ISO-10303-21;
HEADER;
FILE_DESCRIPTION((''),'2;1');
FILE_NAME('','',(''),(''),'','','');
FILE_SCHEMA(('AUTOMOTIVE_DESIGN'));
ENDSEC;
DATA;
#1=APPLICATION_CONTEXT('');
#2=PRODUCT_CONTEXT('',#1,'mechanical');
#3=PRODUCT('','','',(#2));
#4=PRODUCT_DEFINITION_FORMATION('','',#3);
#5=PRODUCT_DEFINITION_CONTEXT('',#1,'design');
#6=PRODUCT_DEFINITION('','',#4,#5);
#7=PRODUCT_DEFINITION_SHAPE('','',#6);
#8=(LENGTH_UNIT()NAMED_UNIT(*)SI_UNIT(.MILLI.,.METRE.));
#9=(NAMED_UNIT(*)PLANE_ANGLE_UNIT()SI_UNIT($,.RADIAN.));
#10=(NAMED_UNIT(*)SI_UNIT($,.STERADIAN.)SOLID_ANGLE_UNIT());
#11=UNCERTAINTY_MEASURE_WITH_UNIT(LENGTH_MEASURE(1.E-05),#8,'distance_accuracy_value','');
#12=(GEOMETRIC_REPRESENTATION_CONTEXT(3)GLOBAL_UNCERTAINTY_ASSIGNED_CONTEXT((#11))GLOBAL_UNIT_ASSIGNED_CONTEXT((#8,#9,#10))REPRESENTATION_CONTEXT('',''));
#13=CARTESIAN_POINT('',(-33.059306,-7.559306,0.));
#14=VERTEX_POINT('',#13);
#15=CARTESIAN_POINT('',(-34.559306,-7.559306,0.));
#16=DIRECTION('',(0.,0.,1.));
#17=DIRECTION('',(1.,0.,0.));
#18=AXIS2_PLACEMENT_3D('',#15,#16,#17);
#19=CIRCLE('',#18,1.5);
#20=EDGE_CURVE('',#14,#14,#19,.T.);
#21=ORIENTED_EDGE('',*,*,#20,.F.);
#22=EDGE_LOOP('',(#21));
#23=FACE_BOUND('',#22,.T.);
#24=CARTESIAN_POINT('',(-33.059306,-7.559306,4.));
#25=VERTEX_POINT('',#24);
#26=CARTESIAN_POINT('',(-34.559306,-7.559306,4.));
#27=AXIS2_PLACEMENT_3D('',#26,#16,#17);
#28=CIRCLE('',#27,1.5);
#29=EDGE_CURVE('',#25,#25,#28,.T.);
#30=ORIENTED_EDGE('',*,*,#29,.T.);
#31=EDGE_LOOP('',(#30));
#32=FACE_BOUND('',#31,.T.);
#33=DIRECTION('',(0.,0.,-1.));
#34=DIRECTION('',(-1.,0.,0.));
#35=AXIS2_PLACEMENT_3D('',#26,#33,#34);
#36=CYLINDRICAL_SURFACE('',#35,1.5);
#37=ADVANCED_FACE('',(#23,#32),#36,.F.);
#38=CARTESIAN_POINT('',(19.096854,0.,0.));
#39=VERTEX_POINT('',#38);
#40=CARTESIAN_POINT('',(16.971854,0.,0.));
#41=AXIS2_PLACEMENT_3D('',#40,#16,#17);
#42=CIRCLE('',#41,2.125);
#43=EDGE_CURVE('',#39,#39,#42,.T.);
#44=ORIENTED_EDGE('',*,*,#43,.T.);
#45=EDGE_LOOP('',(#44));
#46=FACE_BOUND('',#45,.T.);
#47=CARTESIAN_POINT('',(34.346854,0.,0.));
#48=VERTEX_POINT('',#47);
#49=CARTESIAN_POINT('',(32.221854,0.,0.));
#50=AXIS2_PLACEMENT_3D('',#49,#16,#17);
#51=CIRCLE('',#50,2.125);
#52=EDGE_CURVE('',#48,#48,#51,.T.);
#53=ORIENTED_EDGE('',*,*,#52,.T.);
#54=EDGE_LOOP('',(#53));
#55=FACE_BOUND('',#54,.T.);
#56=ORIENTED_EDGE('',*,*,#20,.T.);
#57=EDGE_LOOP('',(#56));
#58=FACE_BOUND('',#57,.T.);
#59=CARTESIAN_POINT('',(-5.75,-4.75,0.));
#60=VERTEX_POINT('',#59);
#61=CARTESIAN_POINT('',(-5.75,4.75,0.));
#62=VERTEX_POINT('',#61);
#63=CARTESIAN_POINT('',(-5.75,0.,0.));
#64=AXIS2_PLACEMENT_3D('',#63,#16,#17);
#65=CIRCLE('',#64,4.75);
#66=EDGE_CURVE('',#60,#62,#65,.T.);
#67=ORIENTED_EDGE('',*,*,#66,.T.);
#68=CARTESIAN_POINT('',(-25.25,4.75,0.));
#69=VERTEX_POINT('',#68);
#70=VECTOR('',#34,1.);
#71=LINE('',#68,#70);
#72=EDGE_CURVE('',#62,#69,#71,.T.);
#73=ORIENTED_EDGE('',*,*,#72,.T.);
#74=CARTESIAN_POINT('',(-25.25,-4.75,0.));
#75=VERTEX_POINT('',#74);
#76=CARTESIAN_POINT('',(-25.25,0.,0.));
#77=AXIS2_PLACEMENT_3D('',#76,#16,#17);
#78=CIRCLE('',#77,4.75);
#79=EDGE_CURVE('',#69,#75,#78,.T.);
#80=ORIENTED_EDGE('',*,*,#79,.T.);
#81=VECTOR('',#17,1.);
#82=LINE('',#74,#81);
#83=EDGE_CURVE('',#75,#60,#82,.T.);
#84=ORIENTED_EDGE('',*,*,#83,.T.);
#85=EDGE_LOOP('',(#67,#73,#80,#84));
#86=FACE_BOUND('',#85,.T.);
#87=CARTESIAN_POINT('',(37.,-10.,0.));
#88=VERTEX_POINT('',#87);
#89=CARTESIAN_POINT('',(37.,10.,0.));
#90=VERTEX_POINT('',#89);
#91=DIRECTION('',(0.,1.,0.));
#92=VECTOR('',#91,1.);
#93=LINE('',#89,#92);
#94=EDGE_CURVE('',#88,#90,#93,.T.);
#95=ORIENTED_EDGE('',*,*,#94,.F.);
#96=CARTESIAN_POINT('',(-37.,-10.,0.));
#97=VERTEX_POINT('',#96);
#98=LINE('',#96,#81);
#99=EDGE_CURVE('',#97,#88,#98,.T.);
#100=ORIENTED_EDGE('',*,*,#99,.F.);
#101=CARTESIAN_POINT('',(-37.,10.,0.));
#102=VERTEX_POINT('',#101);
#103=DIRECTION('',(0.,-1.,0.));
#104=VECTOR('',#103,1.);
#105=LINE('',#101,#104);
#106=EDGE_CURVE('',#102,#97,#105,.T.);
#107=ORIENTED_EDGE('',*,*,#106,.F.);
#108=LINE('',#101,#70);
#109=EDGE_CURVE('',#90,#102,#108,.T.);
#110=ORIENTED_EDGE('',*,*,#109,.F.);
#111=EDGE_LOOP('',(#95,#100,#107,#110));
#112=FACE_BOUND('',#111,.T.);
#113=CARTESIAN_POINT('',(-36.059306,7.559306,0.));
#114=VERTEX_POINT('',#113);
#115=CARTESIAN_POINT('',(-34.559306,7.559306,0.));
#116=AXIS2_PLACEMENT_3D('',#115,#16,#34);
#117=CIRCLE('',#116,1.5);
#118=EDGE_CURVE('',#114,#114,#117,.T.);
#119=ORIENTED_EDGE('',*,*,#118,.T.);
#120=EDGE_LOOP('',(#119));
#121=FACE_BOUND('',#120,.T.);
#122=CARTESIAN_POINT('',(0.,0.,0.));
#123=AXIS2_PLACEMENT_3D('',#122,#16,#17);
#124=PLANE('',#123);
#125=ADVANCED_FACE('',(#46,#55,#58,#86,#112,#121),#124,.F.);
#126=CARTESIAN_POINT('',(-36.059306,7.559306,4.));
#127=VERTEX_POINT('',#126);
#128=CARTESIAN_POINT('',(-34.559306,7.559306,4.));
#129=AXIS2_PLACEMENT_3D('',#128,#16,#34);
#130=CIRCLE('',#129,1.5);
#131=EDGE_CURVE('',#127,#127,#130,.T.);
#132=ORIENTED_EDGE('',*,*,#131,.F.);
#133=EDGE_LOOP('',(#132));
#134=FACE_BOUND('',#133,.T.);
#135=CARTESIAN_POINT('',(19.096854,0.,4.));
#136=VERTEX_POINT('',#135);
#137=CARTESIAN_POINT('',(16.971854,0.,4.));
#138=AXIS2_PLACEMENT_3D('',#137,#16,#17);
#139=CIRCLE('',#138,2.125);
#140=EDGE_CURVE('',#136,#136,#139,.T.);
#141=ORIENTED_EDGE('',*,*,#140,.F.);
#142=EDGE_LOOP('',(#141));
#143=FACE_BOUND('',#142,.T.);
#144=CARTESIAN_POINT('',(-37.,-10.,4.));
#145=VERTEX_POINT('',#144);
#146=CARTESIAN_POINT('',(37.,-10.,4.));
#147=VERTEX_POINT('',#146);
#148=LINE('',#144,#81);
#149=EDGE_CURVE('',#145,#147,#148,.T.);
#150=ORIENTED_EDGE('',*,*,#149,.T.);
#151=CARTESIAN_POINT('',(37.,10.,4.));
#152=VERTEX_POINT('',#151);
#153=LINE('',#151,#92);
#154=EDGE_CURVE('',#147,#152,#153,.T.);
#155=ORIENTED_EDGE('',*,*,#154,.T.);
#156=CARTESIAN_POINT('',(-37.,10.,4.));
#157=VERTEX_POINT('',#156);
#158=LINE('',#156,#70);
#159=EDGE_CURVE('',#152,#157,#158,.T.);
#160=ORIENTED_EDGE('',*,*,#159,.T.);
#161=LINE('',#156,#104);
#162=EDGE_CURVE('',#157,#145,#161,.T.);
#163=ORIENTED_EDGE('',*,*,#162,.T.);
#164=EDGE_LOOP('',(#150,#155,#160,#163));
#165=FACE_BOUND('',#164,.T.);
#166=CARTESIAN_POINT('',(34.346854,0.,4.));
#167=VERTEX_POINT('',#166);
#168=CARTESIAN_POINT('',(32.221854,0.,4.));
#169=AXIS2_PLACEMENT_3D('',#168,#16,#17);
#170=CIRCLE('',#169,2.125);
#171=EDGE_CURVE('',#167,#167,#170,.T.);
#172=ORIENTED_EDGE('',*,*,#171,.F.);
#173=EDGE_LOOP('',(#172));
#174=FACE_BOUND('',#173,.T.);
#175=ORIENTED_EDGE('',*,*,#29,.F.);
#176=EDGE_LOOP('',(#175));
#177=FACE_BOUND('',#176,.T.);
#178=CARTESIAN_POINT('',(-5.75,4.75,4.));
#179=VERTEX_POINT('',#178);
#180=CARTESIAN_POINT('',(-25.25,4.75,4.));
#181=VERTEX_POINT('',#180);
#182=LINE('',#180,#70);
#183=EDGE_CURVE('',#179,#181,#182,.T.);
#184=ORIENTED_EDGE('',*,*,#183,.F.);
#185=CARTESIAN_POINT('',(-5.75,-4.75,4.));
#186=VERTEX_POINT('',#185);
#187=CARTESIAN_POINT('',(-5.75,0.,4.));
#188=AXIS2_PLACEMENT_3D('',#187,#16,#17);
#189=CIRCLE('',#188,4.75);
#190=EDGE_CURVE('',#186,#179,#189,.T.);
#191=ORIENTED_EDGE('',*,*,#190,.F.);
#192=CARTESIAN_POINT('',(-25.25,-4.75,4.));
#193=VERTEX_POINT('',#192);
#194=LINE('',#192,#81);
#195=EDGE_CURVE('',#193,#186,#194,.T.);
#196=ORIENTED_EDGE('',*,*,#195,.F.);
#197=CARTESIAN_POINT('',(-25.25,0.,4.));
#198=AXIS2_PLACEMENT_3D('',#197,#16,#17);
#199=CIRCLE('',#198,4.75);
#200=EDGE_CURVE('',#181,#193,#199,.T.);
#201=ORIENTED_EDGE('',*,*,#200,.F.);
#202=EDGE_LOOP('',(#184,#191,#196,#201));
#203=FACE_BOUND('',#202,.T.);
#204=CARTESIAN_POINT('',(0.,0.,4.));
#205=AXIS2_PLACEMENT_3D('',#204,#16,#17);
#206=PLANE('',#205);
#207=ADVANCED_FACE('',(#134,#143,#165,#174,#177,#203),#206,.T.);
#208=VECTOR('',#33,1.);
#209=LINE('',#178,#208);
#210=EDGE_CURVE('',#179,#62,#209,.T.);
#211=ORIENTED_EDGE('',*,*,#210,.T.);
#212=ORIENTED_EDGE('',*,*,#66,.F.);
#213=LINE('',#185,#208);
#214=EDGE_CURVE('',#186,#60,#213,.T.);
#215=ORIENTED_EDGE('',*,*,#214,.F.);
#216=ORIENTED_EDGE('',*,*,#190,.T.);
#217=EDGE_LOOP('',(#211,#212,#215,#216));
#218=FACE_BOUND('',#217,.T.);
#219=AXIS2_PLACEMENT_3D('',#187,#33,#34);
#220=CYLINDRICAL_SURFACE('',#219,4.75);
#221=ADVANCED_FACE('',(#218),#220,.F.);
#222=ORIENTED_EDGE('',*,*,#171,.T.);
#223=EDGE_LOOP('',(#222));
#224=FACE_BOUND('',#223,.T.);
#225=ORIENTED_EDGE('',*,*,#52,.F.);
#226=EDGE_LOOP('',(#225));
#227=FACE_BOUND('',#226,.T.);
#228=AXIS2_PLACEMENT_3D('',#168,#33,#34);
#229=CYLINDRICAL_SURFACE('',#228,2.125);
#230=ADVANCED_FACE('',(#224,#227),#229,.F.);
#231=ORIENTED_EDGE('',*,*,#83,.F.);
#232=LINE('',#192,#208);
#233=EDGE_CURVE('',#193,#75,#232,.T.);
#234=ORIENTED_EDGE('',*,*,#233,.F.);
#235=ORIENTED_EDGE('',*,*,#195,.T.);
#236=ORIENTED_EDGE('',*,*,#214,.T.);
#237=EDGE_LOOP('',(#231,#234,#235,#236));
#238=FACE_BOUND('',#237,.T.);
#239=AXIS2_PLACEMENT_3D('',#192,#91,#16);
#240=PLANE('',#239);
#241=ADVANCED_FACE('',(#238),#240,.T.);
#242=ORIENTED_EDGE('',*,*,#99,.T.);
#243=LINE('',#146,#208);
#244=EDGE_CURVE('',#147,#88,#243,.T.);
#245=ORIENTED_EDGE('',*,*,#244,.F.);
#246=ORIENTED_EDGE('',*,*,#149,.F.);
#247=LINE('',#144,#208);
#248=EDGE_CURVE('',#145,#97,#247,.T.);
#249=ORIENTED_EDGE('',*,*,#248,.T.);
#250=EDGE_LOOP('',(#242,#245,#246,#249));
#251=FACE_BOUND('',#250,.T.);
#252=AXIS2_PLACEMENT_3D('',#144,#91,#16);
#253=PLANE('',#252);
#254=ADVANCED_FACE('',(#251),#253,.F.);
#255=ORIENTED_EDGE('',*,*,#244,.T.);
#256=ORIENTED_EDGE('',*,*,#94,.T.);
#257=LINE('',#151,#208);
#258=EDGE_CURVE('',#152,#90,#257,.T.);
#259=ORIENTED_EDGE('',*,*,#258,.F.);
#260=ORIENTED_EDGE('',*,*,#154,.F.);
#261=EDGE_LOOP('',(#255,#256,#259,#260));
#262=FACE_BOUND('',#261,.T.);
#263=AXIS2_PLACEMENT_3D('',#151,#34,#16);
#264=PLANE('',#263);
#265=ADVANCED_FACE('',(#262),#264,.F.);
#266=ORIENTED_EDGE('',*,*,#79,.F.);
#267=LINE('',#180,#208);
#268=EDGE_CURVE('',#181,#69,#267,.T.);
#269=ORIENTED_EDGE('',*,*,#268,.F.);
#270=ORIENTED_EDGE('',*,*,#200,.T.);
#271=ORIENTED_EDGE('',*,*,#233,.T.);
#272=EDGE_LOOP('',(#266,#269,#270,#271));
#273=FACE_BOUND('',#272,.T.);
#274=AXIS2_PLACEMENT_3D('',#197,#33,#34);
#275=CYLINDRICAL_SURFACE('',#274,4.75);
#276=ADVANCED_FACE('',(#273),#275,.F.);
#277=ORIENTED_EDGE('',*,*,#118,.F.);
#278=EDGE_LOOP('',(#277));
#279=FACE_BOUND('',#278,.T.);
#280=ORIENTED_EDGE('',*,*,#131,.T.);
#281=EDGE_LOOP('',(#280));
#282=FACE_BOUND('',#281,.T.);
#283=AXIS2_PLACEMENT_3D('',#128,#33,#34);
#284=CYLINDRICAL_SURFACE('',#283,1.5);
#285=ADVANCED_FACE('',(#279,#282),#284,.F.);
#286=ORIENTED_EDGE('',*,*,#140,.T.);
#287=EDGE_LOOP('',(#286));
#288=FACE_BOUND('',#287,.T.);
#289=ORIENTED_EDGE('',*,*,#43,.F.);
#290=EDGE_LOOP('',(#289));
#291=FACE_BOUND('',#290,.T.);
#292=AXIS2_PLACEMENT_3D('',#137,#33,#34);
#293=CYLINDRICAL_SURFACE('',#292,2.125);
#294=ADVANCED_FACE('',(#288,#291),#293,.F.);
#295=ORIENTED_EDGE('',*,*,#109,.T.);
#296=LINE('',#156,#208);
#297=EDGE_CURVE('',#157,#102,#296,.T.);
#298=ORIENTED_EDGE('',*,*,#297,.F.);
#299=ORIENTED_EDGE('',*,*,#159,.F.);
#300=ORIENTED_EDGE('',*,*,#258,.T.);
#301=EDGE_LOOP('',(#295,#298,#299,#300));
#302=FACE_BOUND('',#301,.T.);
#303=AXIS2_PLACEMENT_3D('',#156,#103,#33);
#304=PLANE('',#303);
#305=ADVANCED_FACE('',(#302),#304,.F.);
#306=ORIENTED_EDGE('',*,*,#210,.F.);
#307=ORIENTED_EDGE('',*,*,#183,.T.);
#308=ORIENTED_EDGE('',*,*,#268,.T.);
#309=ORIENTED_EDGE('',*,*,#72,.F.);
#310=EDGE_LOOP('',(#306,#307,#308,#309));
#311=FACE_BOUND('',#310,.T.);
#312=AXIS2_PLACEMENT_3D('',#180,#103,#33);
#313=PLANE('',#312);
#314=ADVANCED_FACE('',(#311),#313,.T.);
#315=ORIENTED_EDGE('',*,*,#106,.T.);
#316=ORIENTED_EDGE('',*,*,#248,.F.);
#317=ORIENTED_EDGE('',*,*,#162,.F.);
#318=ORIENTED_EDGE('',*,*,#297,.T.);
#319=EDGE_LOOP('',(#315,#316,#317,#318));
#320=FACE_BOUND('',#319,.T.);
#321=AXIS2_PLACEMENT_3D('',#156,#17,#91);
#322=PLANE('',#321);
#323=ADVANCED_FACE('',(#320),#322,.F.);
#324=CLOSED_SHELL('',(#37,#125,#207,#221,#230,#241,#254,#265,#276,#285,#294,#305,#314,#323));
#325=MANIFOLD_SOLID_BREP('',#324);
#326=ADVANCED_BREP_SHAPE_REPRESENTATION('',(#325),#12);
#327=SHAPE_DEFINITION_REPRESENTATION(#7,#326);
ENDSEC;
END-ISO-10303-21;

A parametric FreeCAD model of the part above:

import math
import FreeCAD as App
import Part
import Sketcher
from FreeCAD import Vector

doc = App.newDocument("Part")
body = doc.addObject("PartDesign::Body", "Body")

sketch1 = body.newObject("Sketcher::SketchObject", "Sketch")
sketch1.AttachmentSupport = (doc.getObject("XY_Plane"), [""])
sketch1.MapMode = "FlatFace"
sketch1.addGeometry([
    Part.LineSegment(Vector(-37, 10, 0), Vector(-37, -10, 0)),
    Part.LineSegment(Vector(-37, -10, 0), Vector(37, -10, 0)),
    Part.LineSegment(Vector(37, -10, 0), Vector(37, 10, 0)),
    Part.LineSegment(Vector(37, 10, 0), Vector(-37, 10, 0)),
    Part.Circle(Vector(-34.559306, -7.559306, 0), Vector(0, 0, 1), 1.5),
    Part.ArcOfCircle(Part.Circle(Vector(-25.25, 0, 0), Vector(0, 0, 1), 4.75), math.radians(90), math.radians(270)),
    Part.LineSegment(Vector(-25.25, 4.75, 0), Vector(-5.75, 4.75, 0)),
    Part.ArcOfCircle(Part.Circle(Vector(-5.75, 0, 0), Vector(0, 0, 1), 4.75), math.radians(-90), math.radians(90)),
    Part.LineSegment(Vector(-5.75, -4.75, 0), Vector(-25.25, -4.75, 0)),
    Part.Circle(Vector(-34.559306, 7.559306, 0), Vector(0, 0, 1), 1.5),
    Part.Circle(Vector(16.971854, 0, 0), Vector(0, 0, 1), 2.125),
    Part.Circle(Vector(32.221854, 0, 0), Vector(0, 0, 1), 2.125),
], False)
sketch1.addConstraint([
    Sketcher.Constraint("Coincident", 0, 2, 1, 1),
    Sketcher.Constraint("Coincident", 1, 2, 2, 1),
    Sketcher.Constraint("Coincident", 2, 2, 3, 1),
    Sketcher.Constraint("Coincident", 3, 2, 0, 1),
    Sketcher.Constraint("Tangent", 5, 1, 6, 1),
    Sketcher.Constraint("Tangent", 6, 2, 7, 2),
    Sketcher.Constraint("Tangent", 7, 1, 8, 1),
    Sketcher.Constraint("Tangent", 8, 2, 5, 2),
    Sketcher.Constraint("Vertical", 0),
    Sketcher.Constraint("Horizontal", 1),
    Sketcher.Constraint("Vertical", 2),
    Sketcher.Constraint("Horizontal", 3),
    Sketcher.Constraint("Horizontal", 6),
    Sketcher.Constraint("Horizontal", 8),
    Sketcher.Constraint("Equal", 4, 9),
    Sketcher.Constraint("Equal", 10, 11),
    Sketcher.Constraint("Symmetric", 0, 2, 2, 2, -1, 1),
    Sketcher.Constraint("Symmetric", 4, 3, 9, 3, -1),
    Sketcher.Constraint("PointOnObject", 5, 3, -1),
    Sketcher.Constraint("PointOnObject", 10, 3, -1),
    Sketcher.Constraint("PointOnObject", 11, 3, -1),
    Sketcher.Constraint("Diameter", 4, 3.0),
    Sketcher.Constraint("Diameter", 10, 4.25),
    Sketcher.Constraint("DistanceX", 1, 1, 1, 2, 74.0),
    Sketcher.Constraint("DistanceY", 0, 2, 0, 1, 20.0),
    Sketcher.Constraint("Radius", 5, 4.75),
    Sketcher.Constraint("DistanceX", 6, 1, 6, 2, 19.5),
    Sketcher.Constraint("DistanceX", 5, 3, -1, 1, 25.25),
    Sketcher.Constraint("DistanceX", 10, 3, 11, 3, 15.25),
    Sketcher.Constraint("DistanceY", 4, 3, 9, 3, 15.118612),
    Sketcher.Constraint("DistanceX", 4, 3, 10, 3, 51.53116),
    Sketcher.Constraint("DistanceX", 4, 3, -1, 1, 34.559306),
])
pad1 = body.newObject("PartDesign::Pad", "Pad")
pad1.Profile = sketch1
pad1.Length = 4

doc.recompute()
